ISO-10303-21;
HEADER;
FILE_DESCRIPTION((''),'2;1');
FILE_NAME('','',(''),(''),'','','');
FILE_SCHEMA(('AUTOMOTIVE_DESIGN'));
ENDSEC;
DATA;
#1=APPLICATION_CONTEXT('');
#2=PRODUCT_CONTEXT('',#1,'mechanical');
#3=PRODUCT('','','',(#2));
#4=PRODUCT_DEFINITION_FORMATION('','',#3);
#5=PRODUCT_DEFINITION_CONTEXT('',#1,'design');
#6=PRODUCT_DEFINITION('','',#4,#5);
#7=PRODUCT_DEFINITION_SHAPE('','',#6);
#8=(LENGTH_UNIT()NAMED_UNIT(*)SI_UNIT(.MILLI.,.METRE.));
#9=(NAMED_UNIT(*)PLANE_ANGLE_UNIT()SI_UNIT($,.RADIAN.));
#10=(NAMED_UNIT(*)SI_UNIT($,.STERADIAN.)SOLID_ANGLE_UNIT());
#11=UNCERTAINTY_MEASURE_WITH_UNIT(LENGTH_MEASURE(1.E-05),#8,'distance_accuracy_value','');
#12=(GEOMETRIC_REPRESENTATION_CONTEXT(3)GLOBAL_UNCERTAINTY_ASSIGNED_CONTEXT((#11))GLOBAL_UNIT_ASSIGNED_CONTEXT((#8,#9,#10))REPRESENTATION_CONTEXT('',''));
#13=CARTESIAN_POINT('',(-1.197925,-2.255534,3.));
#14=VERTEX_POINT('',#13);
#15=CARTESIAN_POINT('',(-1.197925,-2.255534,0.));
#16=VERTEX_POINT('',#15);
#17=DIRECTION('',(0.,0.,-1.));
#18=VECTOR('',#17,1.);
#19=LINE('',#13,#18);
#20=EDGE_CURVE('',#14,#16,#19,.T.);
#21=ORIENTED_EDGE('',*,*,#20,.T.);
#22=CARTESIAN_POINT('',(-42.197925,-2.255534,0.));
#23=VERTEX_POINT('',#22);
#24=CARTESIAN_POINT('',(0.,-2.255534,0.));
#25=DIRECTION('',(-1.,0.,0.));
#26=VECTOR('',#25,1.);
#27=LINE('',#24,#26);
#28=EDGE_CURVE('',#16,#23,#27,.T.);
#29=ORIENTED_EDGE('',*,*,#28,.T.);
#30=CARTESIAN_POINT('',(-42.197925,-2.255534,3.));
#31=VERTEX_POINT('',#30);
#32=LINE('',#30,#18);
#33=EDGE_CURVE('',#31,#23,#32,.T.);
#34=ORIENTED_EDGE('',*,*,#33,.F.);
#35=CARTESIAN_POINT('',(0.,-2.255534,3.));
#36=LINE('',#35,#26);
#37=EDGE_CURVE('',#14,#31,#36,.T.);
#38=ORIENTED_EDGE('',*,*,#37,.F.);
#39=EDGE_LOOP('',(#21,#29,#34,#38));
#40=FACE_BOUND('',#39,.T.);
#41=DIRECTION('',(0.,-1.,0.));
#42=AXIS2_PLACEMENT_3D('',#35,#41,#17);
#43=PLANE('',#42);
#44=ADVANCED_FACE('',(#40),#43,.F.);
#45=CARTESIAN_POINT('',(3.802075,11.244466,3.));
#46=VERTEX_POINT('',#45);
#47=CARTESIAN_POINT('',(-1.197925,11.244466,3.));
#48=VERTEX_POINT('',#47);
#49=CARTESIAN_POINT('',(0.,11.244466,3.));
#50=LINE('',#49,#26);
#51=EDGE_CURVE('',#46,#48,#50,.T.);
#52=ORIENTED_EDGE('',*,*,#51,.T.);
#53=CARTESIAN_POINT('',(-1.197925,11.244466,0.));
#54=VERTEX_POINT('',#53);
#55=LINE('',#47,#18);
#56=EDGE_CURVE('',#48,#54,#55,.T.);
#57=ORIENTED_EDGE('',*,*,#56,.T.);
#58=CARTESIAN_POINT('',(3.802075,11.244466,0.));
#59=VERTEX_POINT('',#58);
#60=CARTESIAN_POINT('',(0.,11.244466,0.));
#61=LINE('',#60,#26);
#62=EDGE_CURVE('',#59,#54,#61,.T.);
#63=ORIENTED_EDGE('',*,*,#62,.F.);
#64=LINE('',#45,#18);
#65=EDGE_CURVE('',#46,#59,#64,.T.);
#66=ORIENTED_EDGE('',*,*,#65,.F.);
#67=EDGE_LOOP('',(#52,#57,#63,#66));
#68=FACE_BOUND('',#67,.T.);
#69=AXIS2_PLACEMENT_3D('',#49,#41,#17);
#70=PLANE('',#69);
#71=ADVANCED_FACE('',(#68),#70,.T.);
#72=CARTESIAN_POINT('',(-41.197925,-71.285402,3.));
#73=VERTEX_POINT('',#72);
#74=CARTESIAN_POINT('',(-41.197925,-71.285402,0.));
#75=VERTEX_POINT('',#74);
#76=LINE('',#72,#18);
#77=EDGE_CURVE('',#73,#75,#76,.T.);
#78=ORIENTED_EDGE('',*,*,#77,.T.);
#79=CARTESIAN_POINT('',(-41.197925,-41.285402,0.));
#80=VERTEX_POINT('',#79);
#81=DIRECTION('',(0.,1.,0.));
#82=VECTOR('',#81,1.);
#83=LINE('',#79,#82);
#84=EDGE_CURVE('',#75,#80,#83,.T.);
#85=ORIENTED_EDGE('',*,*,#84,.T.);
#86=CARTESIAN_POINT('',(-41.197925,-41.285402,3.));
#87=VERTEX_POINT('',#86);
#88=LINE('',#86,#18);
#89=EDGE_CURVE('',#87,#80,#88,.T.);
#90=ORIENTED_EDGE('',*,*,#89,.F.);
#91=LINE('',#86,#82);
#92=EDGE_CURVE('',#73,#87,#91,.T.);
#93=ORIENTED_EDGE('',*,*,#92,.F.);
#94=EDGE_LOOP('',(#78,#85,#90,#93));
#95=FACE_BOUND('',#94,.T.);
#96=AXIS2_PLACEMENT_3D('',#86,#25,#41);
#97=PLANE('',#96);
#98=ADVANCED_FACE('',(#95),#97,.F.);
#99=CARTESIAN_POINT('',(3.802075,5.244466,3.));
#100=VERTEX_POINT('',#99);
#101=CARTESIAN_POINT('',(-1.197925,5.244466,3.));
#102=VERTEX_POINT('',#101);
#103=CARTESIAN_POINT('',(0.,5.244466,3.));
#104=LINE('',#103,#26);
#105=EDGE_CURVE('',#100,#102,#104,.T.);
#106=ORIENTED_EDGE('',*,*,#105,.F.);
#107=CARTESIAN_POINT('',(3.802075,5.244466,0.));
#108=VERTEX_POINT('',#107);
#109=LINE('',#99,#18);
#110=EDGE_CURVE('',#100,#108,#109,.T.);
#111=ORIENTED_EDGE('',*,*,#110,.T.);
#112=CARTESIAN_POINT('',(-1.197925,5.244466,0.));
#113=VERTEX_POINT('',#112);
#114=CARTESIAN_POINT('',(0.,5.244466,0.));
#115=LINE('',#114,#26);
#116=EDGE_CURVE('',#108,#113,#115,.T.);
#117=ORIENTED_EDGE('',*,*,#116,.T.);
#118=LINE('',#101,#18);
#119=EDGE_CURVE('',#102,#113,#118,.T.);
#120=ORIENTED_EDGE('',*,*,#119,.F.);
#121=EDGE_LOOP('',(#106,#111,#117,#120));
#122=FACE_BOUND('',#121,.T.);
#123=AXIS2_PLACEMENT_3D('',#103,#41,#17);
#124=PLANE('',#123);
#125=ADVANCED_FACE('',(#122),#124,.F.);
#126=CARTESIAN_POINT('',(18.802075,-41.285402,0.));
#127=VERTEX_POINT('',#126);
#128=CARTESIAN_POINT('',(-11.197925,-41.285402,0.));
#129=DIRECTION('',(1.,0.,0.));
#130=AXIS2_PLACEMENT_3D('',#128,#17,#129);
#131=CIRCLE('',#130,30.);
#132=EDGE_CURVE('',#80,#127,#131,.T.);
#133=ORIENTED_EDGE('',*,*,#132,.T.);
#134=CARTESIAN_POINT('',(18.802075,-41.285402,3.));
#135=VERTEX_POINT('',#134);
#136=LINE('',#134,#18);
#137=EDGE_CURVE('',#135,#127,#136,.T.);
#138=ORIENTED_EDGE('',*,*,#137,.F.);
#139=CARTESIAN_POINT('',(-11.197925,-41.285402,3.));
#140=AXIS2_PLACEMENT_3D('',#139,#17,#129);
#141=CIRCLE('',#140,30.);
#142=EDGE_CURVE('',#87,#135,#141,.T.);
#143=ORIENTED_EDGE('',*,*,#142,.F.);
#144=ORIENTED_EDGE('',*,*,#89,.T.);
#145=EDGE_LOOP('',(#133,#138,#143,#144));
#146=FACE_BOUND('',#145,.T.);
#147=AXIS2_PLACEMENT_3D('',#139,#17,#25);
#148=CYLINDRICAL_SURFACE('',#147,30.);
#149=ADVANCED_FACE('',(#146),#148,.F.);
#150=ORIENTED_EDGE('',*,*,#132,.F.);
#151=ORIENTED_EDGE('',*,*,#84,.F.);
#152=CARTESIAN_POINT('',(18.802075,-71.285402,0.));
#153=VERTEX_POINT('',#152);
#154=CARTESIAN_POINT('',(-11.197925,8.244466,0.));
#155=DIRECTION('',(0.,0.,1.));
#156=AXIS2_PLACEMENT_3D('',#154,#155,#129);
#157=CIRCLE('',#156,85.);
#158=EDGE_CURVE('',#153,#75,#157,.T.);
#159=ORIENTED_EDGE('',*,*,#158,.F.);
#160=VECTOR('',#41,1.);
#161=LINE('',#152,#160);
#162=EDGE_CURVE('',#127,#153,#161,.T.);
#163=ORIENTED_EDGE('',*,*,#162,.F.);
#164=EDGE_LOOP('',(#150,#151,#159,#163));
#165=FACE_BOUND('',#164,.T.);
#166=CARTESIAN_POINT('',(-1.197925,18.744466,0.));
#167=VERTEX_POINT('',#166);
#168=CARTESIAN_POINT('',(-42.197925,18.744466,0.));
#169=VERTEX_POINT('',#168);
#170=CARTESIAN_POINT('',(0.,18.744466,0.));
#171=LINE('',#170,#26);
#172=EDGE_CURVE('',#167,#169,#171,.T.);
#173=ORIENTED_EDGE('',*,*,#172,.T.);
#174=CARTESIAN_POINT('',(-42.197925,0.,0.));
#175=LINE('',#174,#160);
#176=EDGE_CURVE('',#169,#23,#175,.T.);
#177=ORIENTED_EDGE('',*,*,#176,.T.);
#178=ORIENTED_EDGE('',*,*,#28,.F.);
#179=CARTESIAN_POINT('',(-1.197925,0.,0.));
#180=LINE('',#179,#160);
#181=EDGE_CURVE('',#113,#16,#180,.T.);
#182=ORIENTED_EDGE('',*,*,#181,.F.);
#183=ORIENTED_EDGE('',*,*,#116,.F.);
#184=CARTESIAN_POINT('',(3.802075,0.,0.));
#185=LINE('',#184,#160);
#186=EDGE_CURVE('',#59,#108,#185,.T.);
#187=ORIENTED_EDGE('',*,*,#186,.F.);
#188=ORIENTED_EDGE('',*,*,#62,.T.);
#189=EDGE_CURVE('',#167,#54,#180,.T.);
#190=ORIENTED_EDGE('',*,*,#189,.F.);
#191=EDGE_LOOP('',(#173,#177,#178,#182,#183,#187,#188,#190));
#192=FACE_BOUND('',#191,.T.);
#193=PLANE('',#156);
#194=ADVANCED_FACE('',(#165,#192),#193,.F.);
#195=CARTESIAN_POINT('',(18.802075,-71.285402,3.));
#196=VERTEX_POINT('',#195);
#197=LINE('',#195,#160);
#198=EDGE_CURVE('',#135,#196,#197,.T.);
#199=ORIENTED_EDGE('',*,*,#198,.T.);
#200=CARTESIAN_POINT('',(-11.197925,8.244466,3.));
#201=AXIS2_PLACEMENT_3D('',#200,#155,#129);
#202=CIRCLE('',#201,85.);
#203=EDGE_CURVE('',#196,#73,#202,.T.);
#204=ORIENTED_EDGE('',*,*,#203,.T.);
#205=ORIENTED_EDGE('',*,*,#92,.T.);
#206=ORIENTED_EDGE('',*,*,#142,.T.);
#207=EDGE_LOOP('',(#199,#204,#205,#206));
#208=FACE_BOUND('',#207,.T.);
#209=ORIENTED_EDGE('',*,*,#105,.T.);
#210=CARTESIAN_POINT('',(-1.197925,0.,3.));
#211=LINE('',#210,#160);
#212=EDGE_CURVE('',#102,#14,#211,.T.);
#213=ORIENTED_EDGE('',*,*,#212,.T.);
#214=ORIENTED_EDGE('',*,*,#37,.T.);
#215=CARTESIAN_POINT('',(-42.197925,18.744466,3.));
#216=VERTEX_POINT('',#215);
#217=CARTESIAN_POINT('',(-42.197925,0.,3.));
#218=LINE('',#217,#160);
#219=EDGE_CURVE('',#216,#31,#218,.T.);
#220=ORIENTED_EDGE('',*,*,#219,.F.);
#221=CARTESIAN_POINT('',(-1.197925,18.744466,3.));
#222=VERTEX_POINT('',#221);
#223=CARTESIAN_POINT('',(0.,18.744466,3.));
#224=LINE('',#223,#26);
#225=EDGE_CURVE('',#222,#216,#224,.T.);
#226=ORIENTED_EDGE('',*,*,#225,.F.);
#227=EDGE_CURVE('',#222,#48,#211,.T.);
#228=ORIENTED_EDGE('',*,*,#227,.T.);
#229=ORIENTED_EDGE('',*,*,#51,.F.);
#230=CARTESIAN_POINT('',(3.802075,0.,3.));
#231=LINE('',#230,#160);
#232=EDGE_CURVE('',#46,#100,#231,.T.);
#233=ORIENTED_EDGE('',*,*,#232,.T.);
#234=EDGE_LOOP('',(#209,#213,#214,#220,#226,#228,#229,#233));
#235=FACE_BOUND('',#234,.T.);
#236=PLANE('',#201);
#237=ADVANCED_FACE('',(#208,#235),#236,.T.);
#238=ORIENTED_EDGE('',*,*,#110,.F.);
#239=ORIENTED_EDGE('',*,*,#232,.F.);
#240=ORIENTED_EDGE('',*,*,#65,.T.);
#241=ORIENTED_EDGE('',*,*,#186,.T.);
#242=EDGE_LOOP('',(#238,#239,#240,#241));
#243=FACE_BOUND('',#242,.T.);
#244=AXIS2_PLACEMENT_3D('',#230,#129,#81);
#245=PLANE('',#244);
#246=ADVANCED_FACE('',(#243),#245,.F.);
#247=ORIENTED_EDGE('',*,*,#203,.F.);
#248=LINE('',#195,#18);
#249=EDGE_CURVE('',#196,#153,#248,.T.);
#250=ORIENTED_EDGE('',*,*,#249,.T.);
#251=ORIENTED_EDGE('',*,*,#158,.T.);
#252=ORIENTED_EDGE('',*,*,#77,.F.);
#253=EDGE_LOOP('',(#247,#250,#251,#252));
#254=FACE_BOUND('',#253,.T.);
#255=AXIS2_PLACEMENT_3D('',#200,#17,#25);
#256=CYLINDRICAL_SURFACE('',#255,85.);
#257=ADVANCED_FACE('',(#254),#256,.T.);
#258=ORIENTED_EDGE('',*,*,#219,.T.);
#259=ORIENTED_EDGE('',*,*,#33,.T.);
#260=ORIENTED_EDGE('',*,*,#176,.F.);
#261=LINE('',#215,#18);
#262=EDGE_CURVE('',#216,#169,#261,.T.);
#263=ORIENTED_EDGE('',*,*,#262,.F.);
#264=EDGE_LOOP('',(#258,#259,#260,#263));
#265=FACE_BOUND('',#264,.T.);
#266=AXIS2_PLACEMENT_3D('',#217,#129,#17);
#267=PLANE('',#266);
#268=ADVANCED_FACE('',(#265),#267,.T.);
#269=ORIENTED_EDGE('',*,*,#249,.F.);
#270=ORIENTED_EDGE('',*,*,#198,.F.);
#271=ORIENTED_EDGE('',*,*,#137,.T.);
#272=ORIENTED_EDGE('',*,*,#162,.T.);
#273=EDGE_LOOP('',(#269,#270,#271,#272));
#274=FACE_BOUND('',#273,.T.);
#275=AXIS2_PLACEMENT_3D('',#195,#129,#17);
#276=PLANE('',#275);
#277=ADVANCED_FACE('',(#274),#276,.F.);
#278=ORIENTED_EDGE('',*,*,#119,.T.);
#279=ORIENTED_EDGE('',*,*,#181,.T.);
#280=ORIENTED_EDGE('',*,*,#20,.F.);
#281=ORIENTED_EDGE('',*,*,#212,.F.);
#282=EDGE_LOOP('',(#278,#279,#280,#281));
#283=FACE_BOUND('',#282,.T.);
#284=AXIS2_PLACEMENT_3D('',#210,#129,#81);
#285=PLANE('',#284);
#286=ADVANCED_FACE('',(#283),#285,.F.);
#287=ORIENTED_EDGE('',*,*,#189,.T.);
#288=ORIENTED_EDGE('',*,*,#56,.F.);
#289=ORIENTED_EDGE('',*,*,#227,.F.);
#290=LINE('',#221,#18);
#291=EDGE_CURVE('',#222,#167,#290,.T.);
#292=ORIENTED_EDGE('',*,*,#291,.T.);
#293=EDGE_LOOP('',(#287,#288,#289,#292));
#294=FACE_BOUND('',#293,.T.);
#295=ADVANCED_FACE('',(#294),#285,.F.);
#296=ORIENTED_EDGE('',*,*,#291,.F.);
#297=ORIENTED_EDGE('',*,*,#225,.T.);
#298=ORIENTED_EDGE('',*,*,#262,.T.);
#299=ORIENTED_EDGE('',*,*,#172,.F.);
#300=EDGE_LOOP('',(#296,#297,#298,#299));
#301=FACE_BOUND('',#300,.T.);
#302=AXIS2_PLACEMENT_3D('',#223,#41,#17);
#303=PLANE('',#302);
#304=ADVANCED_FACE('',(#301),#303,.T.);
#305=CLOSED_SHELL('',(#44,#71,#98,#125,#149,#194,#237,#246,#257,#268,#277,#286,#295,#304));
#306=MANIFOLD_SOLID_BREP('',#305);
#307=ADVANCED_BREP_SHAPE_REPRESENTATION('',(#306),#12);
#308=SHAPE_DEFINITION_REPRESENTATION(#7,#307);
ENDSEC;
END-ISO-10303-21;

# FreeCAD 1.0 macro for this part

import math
import FreeCAD as App
import Part
import Sketcher

V = App.Vector
Q = App.Units.Quantity


def add_polygon(sketch, points):
    """Adds a closed chain of lines whose ends are joined by coincident constraints."""
    first, n = sketch.GeometryCount, len(points)
    for a, b in zip(points, points[1:] + points[:1]):
        sketch.addGeometry(Part.LineSegment(App.Vector(*a, 0), App.Vector(*b, 0)), False)
    for i in range(n):
        sketch.addConstraint(Sketcher.Constraint("Coincident", first + i, 2, first + (i + 1) % n, 1))

doc = App.newDocument("Part")
body = doc.addObject("PartDesign::Body", "Body")

sketch1 = doc.addObject("Sketcher::SketchObject", "Sketch")
body.addObject(sketch1)
sketch1.AttachmentSupport = (doc.XY_Plane, [""])
sketch1.MapMode = "FlatFace"
sketch1.addGeometry(Part.Circle(V(-11.197925, 8.244466, 0), V(0, 0, 1), 85), False)
sketch1.addConstraint([
    Sketcher.Constraint("Diameter", 0, Q("170 mm")),
    Sketcher.Constraint("DistanceX", 0, 3, -1, 1, Q("11.197925 mm")),
    Sketcher.Constraint("DistanceY", -1, 1, 0, 3, Q("8.244466 mm")),
])
pad1 = doc.addObject("PartDesign::Pad", "Pad")
body.addObject(pad1)
pad1.Profile = sketch1
pad1.Length = 3

sketch2 = doc.addObject("Sketcher::SketchObject", "Sketch001")
body.addObject(sketch2)
sketch2.AttachmentSupport = (doc.XY_Plane, [""])
sketch2.MapMode = "FlatFace"
add_polygon(sketch2, [(3.802075, 11.244466), (3.802075, 5.244466), (-1.197925, 5.244466), (-1.197925, -2.255534), (-42.197925, -2.255534), (-42.197925, 18.744466), (-1.197925, 18.744466), (-1.197925, 11.244466)])
sketch2.addConstraint([
    Sketcher.Constraint("Vertical", 0),
    Sketcher.Constraint("Horizontal", 1),
    Sketcher.Constraint("Vertical", 2),
    Sketcher.Constraint("Horizontal", 3),
    Sketcher.Constraint("Vertical", 4),
    Sketcher.Constraint("Horizontal", 5),
    Sketcher.Constraint("Vertical", 6),
    Sketcher.Constraint("Horizontal", 7),
    Sketcher.Constraint("Vertical", 2, 2, 5, 2),
    Sketcher.Constraint("Equal", 2, 6),
    Sketcher.Constraint("DistanceX", 1, 2, 1, 1, Q("5 mm")),
    Sketcher.Constraint("DistanceX", 3, 2, 3, 1, Q("41 mm")),
    Sketcher.Constraint("DistanceY", 0, 2, 0, 1, Q("6 mm")),
    Sketcher.Constraint("DistanceY", 4, 1, 4, 2, Q("21 mm")),
    Sketcher.Constraint("DistanceX", -1, 1, 0, 2, Q("3.802075 mm")),
    Sketcher.Constraint("DistanceY", -1, 1, 0, 2, Q("5.244466 mm")),
])
pocket1 = doc.addObject("PartDesign::Pocket", "Pocket")
body.addObject(pocket1)
pocket1.Profile = sketch2
pocket1.Length = 3
pocket1.Reversed = True

sketch3 = doc.addObject("Sketcher::SketchObject", "Sketch002")
body.addObject(sketch3)
sketch3.AttachmentSupport = (doc.XY_Plane, [""])
sketch3.MapMode = "FlatFace"
sketch3.addGeometry([
    Part.LineSegment(V(18.802075, -41.285402, 0), V(18.802075, -71.285402, 0)),
    Part.ArcOfCircle(Part.Circle(V(-11.197925, 8.244466, 0), V(0, 0, 1), 85), math.radians(-110.667316), math.radians(-69.332684)),
    Part.LineSegment(V(-41.197925, -71.285402, 0), V(-41.197925, -41.285402, 0)),
    Part.ArcOfCircle(Part.Circle(V(-11.197925, -41.285402, 0), V(0, 0, 1), 30), math.radians(0), math.radians(180)),
], False)
sketch3.addConstraint([
    Sketcher.Constraint("Coincident", 0, 2, 1, 2),
    Sketcher.Constraint("Coincident", 1, 1, 2, 1),
    Sketcher.Constraint("Tangent", 2, 2, 3, 2),
    Sketcher.Constraint("Tangent", 3, 1, 0, 1),
    Sketcher.Constraint("Vertical", 0),
    Sketcher.Constraint("Vertical", 2),
    Sketcher.Constraint("Horizontal", 0, 2, 1, 1),
    Sketcher.Constraint("Radius", 1, Q("85 mm")),
    Sketcher.Constraint("Radius", 3, Q("30 mm")),
    Sketcher.Constraint("DistanceY", 0, 2, 0, 1, Q("30 mm")),
    Sketcher.Constraint("DistanceX", 1, 3, -1, 1, Q("11.197925 mm")),
    Sketcher.Constraint("DistanceY", -1, 1, 1, 3, Q("8.244466 mm")),
])
pocket2 = doc.addObject("PartDesign::Pocket", "Pocket001")
body.addObject(pocket2)
pocket2.Profile = sketch3
pocket2.Length = 3
pocket2.Reversed = True

doc.recompute()
